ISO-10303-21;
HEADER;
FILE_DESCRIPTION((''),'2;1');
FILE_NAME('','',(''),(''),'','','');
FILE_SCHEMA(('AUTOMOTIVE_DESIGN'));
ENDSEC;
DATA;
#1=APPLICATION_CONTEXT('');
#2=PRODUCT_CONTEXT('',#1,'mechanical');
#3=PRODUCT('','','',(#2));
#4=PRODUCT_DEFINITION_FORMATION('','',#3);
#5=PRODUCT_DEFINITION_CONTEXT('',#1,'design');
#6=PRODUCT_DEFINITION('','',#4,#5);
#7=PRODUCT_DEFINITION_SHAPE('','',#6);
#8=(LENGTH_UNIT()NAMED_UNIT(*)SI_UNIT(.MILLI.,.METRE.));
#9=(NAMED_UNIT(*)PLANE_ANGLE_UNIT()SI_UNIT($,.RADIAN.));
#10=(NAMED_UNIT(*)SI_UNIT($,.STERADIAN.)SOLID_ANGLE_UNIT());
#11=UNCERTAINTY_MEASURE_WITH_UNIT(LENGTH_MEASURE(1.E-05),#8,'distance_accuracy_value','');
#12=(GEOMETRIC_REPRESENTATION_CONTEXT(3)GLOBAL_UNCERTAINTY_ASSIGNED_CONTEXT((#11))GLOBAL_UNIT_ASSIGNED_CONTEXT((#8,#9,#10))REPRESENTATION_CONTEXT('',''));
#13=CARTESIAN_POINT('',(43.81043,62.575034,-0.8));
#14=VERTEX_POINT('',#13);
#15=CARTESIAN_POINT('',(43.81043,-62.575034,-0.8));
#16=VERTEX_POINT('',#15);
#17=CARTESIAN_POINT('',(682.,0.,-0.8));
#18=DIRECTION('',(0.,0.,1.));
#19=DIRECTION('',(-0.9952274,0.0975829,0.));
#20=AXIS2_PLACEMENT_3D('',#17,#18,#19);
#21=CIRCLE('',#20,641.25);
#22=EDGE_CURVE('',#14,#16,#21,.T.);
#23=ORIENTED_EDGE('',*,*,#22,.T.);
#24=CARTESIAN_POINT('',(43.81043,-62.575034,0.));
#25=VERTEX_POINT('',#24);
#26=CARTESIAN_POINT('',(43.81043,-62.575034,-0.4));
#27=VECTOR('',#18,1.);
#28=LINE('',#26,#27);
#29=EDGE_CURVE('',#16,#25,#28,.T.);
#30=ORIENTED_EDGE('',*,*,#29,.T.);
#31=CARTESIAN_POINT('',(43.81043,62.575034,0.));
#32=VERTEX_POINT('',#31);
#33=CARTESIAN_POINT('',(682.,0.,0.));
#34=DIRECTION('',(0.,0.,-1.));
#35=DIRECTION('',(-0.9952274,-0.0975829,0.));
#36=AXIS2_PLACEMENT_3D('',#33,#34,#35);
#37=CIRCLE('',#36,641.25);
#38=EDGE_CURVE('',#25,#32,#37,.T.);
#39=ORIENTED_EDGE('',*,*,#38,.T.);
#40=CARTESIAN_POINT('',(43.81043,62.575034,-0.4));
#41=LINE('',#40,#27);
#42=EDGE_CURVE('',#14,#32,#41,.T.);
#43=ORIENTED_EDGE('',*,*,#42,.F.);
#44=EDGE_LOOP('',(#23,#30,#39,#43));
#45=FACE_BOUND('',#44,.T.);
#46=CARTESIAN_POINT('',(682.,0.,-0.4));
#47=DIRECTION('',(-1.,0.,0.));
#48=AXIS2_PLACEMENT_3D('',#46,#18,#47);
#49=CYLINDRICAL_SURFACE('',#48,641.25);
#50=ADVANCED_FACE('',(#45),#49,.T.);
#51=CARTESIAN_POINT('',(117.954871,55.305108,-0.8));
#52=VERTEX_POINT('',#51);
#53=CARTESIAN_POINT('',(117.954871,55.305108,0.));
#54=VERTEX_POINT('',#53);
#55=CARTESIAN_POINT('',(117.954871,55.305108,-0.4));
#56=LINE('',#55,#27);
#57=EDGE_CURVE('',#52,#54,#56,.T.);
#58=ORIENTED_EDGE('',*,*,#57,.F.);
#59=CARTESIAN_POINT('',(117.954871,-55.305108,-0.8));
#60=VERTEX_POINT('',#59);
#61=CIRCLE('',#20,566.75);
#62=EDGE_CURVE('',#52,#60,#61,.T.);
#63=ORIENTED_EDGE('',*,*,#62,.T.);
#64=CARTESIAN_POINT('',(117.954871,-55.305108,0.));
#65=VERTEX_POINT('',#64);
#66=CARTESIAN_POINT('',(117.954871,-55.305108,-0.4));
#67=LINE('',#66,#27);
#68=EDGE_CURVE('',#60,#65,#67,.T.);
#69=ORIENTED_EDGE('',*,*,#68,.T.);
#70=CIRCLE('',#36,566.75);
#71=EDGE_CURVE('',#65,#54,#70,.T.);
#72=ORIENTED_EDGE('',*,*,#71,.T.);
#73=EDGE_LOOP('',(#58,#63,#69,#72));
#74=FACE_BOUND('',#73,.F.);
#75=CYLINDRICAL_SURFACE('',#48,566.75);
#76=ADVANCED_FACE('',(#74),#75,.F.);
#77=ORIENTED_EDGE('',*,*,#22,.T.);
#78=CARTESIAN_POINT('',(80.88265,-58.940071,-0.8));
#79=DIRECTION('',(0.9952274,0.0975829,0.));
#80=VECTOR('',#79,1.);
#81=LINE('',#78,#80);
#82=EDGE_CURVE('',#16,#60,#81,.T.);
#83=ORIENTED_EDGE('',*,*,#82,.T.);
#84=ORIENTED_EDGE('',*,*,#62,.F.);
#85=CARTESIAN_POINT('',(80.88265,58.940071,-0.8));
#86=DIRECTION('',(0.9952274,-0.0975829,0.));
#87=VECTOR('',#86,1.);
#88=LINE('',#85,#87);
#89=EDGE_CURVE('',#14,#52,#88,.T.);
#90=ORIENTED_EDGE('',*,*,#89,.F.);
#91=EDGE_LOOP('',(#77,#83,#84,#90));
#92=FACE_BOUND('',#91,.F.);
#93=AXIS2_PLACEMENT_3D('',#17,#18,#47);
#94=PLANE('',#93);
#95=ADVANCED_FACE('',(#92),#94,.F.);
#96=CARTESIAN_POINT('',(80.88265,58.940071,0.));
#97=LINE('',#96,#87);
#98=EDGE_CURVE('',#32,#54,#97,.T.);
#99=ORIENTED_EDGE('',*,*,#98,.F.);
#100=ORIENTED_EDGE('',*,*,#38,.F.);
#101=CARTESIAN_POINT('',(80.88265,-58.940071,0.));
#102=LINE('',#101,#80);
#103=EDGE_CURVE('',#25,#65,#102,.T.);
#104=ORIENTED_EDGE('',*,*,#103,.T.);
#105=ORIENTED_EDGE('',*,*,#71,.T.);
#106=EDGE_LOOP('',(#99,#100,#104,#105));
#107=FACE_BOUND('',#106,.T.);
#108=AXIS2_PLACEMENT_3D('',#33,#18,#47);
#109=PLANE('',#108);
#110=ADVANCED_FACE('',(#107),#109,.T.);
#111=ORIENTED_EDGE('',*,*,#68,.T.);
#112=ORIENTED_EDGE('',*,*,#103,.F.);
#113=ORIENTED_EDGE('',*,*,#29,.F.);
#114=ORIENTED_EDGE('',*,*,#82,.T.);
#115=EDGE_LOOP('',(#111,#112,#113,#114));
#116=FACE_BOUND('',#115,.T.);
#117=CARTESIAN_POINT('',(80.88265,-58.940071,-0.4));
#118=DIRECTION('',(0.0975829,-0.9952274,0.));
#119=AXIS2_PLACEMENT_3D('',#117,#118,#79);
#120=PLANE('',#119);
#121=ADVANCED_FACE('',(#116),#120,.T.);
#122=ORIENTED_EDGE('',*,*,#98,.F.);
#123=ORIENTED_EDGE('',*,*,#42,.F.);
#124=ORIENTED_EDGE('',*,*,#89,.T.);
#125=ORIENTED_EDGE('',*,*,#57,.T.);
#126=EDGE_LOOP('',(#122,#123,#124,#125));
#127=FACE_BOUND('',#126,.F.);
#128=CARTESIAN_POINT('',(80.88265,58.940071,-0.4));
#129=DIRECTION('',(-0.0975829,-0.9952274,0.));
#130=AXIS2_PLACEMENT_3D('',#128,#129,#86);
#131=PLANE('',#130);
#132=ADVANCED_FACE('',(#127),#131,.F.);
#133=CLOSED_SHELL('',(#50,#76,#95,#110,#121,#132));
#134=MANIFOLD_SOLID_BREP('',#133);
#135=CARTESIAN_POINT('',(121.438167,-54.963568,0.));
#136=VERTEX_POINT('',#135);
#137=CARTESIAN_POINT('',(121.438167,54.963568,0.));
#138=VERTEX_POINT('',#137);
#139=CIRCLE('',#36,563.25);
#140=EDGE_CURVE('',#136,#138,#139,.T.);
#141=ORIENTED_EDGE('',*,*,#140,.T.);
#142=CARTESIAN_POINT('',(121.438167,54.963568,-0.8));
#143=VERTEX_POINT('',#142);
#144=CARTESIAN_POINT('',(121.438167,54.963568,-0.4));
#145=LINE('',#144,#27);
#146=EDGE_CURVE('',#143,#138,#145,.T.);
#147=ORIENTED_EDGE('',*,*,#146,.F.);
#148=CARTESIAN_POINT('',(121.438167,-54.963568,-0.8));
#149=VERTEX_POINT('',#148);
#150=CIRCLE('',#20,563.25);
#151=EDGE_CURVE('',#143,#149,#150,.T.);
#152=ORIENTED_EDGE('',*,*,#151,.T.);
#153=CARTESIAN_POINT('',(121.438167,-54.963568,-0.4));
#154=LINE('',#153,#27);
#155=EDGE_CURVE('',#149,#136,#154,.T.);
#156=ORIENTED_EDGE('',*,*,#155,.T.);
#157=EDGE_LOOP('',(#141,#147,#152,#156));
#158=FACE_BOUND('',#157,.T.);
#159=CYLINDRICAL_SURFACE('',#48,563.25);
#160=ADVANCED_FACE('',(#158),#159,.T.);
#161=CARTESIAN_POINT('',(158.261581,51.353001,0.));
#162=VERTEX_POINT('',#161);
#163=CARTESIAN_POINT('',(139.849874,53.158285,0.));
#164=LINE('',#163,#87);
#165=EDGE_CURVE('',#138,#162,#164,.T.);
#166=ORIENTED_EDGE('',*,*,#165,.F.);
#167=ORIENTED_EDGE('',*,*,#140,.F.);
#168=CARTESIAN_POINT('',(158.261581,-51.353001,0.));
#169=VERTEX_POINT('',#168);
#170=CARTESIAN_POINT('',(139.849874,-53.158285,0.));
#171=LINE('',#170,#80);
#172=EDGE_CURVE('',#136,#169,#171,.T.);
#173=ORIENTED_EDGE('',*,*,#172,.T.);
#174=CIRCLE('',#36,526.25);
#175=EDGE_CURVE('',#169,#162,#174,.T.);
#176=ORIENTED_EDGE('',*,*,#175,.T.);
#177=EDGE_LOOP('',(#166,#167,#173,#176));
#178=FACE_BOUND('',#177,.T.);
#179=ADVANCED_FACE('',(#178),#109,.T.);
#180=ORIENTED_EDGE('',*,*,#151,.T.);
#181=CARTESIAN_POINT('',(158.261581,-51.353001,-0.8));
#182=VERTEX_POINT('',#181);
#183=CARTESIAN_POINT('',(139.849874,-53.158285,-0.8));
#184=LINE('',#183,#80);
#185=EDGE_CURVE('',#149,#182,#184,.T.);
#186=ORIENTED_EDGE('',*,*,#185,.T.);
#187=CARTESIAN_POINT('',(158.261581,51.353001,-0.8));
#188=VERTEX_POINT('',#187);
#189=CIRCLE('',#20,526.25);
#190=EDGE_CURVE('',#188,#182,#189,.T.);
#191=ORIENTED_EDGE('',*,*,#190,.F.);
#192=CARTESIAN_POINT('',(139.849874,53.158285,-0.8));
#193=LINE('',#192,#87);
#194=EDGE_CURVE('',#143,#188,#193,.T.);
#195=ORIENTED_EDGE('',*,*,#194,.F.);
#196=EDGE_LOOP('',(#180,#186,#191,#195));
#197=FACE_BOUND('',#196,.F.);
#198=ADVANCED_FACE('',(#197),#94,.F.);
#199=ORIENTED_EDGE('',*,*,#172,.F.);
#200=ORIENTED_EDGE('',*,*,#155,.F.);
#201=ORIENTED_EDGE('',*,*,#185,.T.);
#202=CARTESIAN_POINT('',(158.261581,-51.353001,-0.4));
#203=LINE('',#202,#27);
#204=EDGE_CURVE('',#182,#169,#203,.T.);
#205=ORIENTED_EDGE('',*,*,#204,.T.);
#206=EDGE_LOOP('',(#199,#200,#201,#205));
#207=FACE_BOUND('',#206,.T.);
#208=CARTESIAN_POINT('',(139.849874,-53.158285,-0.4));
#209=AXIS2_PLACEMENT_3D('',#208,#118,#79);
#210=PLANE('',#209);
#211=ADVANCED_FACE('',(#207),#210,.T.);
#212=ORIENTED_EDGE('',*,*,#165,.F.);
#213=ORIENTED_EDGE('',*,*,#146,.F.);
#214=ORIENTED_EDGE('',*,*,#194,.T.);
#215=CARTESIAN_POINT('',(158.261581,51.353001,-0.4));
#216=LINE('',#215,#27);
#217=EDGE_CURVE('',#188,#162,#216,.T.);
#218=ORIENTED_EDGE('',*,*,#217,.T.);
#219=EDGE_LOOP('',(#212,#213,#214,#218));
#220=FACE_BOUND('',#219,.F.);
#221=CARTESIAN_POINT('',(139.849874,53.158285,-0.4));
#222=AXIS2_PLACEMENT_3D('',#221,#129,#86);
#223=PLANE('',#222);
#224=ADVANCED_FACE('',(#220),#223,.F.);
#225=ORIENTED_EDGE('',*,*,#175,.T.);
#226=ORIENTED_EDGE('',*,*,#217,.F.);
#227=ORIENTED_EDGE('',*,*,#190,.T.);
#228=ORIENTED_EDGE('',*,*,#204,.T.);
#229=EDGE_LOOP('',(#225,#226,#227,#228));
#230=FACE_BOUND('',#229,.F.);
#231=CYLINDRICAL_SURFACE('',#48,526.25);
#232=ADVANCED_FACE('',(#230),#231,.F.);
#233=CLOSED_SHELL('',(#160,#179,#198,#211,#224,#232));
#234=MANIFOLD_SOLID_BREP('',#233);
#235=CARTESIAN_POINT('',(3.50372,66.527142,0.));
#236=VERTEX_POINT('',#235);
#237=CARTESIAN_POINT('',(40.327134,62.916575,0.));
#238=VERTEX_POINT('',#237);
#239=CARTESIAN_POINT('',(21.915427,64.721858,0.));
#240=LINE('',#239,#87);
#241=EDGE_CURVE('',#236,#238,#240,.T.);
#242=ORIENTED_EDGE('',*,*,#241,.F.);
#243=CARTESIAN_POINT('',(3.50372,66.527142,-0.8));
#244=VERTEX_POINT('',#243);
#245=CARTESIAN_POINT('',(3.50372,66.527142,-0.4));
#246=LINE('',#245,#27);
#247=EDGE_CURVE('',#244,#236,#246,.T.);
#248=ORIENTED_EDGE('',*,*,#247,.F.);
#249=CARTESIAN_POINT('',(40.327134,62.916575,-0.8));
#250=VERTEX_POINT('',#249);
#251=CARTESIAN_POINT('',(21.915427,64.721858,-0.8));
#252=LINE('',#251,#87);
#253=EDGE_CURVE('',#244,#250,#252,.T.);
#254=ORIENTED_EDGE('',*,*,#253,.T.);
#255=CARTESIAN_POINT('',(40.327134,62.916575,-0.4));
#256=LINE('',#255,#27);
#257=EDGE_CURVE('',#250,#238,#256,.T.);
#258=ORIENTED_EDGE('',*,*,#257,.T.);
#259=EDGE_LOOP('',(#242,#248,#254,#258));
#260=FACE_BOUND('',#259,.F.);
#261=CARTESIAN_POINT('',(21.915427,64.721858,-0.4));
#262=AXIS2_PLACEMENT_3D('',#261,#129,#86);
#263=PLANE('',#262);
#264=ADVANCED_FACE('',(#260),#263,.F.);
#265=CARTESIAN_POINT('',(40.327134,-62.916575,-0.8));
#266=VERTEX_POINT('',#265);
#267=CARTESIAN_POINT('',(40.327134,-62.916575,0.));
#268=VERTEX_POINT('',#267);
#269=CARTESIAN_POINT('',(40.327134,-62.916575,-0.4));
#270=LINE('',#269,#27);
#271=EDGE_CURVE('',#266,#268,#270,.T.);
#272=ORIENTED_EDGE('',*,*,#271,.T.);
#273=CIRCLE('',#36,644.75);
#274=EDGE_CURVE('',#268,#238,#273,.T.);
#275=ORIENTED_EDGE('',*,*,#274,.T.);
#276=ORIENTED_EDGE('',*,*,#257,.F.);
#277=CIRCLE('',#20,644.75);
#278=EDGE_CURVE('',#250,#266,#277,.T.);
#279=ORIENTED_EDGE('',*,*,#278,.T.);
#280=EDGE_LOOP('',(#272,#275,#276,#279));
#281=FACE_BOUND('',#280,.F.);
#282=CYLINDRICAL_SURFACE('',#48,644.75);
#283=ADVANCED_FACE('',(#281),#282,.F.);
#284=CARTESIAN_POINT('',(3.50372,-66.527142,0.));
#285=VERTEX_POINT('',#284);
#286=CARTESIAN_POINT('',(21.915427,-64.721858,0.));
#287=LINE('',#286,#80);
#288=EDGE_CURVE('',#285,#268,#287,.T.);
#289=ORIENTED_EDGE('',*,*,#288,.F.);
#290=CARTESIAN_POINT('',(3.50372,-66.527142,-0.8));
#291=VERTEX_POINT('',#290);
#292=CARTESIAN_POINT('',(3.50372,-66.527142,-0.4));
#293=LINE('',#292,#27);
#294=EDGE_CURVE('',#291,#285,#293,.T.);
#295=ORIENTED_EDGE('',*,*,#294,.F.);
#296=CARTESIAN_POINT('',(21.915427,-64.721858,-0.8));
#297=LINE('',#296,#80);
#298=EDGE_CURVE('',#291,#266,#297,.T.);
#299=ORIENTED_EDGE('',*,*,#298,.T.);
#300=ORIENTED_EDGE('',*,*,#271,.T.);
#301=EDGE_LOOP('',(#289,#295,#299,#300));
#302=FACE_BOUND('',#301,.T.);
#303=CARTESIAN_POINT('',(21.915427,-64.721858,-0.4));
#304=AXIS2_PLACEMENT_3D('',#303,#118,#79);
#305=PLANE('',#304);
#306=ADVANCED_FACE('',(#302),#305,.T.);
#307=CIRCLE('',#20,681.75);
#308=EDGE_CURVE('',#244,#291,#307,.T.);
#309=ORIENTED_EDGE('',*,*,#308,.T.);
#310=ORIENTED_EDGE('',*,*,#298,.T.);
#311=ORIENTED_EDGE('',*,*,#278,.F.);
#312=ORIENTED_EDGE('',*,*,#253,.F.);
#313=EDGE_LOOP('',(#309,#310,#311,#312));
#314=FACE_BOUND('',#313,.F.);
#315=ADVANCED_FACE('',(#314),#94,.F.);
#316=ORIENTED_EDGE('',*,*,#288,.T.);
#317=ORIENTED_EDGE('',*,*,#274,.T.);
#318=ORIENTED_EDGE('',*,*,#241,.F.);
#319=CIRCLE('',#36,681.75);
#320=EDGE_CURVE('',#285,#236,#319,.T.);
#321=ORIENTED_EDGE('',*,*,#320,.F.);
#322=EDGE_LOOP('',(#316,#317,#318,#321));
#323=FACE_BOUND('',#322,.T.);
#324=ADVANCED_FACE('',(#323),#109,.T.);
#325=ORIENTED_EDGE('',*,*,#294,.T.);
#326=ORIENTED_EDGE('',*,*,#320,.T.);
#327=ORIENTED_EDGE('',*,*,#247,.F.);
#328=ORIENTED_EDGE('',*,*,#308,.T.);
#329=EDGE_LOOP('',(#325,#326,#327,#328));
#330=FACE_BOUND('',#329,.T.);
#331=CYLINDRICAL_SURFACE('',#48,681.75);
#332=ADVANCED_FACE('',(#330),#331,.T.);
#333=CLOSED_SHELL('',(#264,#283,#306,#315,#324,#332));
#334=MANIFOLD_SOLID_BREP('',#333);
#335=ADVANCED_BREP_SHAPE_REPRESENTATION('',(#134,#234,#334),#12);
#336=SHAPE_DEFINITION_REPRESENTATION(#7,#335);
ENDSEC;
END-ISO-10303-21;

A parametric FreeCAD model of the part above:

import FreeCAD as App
import Part
import Sketcher

doc = App.newDocument("Part")
params = doc.addObject("Spreadsheet::Sheet", "Params")
for row, (alias, value) in enumerate([
    ("sketch1_width", "37 mm"),
    ("sketch1_width2", "74.5 mm"),
    ("sketch1_height", "0.8 mm"),
    ("revolution_angle", "5.6 deg"),
    ("sketch2_width", "37 mm"),
    ("sketch2_width2", "74.5 mm"),
    ("sketch2_height", "0.8 mm"),
    ("revolution2_angle", "5.6 deg"),
], start=1):
    params.set(f"A{row}", alias)
    params.set(f"B{row}", "=" + value)
    params.setAlias(f"B{row}", alias)

body = doc.addObject("PartDesign::Body", "Body")
body.AllowCompound = True

sketch1 = body.newObject("Sketcher::SketchObject", "Sketch")
sketch1.AttachmentSupport = (doc.getObject("XZ_Plane"), [""])
sketch1.MapMode = "FlatFace"
sketch1.addGeometry(Part.LineSegment(App.Vector(0.2, 0, 0), App.Vector(0.2, -0.8, 0)), False)
sketch1.addGeometry(Part.LineSegment(App.Vector(0.2, -0.8, 0), App.Vector(37.2, -0.8, 0)), False)
sketch1.addGeometry(Part.LineSegment(App.Vector(37.2, -0.8, 0), App.Vector(37.2, 0, 0)), False)
sketch1.addGeometry(Part.LineSegment(App.Vector(37.2, 0, 0), App.Vector(0.2, 0, 0)), False)
sketch1.addGeometry(Part.LineSegment(App.Vector(40.8, 0, 0), App.Vector(40.8, -0.8, 0)), False)
sketch1.addGeometry(Part.LineSegment(App.Vector(40.8, -0.8, 0), App.Vector(115.2, -0.8, 0)), False)
sketch1.addGeometry(Part.LineSegment(App.Vector(115.2, -0.8, 0), App.Vector(115.2, 0, 0)), False)
sketch1.addGeometry(Part.LineSegment(App.Vector(115.2, 0, 0), App.Vector(40.8, 0, 0)), False)
sketch1.addGeometry(Part.LineSegment(App.Vector(118.8, 0, 0), App.Vector(118.8, -0.8, 0)), False)
sketch1.addGeometry(Part.LineSegment(App.Vector(118.8, -0.8, 0), App.Vector(155.8, -0.8, 0)), False)
sketch1.addGeometry(Part.LineSegment(App.Vector(155.8, -0.8, 0), App.Vector(155.8, 0, 0)), False)
sketch1.addGeometry(Part.LineSegment(App.Vector(155.8, 0, 0), App.Vector(118.8, 0, 0)), False)
sketch1.addGeometry(Part.LineSegment(App.Vector(682, 0, 0), App.Vector(682, -0.8, 0)), True)
sketch1.addConstraint(Sketcher.Constraint("Coincident", 0, 2, 1, 1))
sketch1.addConstraint(Sketcher.Constraint("Coincident", 1, 2, 2, 1))
sketch1.addConstraint(Sketcher.Constraint("Coincident", 2, 2, 3, 1))
sketch1.addConstraint(Sketcher.Constraint("Coincident", 3, 2, 0, 1))
sketch1.addConstraint(Sketcher.Constraint("Coincident", 4, 2, 5, 1))
sketch1.addConstraint(Sketcher.Constraint("Coincident", 5, 2, 6, 1))
sketch1.addConstraint(Sketcher.Constraint("Coincident", 6, 2, 7, 1))
sketch1.addConstraint(Sketcher.Constraint("Coincident", 7, 2, 4, 1))
sketch1.addConstraint(Sketcher.Constraint("Coincident", 8, 2, 9, 1))
sketch1.addConstraint(Sketcher.Constraint("Coincident", 9, 2, 10, 1))
sketch1.addConstraint(Sketcher.Constraint("Coincident", 10, 2, 11, 1))
sketch1.addConstraint(Sketcher.Constraint("Coincident", 11, 2, 8, 1))
sketch1.addConstraint(Sketcher.Constraint("Vertical", 0))
sketch1.addConstraint(Sketcher.Constraint("Horizontal", 1))
sketch1.addConstraint(Sketcher.Constraint("Vertical", 2))
sketch1.addConstraint(Sketcher.Constraint("Horizontal", 3))
sketch1.addConstraint(Sketcher.Constraint("Vertical", 4))
sketch1.addConstraint(Sketcher.Constraint("Horizontal", 5))
sketch1.addConstraint(Sketcher.Constraint("Vertical", 6))
sketch1.addConstraint(Sketcher.Constraint("Horizontal", 7))
sketch1.addConstraint(Sketcher.Constraint("Vertical", 8))
sketch1.addConstraint(Sketcher.Constraint("Horizontal", 9))
sketch1.addConstraint(Sketcher.Constraint("Vertical", 10))
sketch1.addConstraint(Sketcher.Constraint("Horizontal", 11))
sketch1.addConstraint(Sketcher.Constraint("Vertical", 12))
sketch1.addConstraint(Sketcher.Constraint("PointOnObject", 2, 2, -1))
sketch1.addConstraint(Sketcher.Constraint("PointOnObject", 6, 2, -1))
sketch1.addConstraint(Sketcher.Constraint("PointOnObject", 10, 2, -1))
sketch1.addConstraint(Sketcher.Constraint("PointOnObject", 12, 1, -1))
sketch1.addConstraint(Sketcher.Constraint("Horizontal", 1, 2, 4, 2))
sketch1.addConstraint(Sketcher.Constraint("Horizontal", 5, 2, 8, 2))
sketch1.addConstraint(Sketcher.Constraint("Horizontal", 9, 2, 12, 2))
sketch1.addConstraint(Sketcher.Constraint("Equal", 3, 9))
sketch1.addConstraint(Sketcher.Constraint("DistanceX", 1, 1, 1, 2, 37.0))
sketch1.addConstraint(Sketcher.Constraint("DistanceX", 5, 1, 5, 2, 74.5))
sketch1.addConstraint(Sketcher.Constraint("DistanceY", 0, 2, 0, 1, 0.8))
sketch1.addConstraint(Sketcher.Constraint("DistanceX", -1, 1, 12, 1, 682.0))
sketch1.addConstraint(Sketcher.Constraint("DistanceX", 1, 2, 5, 2, 78.0))
sketch1.addConstraint(Sketcher.Constraint("DistanceX", 4, 2, 8, 2, 78.0))
sketch1.addConstraint(Sketcher.Constraint("DistanceX", -1, 1, 0, 2, 0.25))
sketch1.setExpression("Constraints[33]", "Params.sketch1_width")
sketch1.setExpression("Constraints[34]", "Params.sketch1_width2")
sketch1.setExpression("Constraints[35]", "Params.sketch1_height")
revolution = body.newObject("PartDesign::Revolution", "Revolution")
revolution.Profile = sketch1
revolution.ReferenceAxis = (sketch1, ["Axis0"])
revolution.setExpression("Angle", "Params.revolution_angle")

sketch2 = body.newObject("Sketcher::SketchObject", "Sketch001")
sketch2.AttachmentSupport = (doc.getObject("XZ_Plane"), [""])
sketch2.MapMode = "FlatFace"
sketch2.addGeometry(Part.LineSegment(App.Vector(0.2, 0, 0), App.Vector(0.2, -0.8, 0)), False)
sketch2.addGeometry(Part.LineSegment(App.Vector(0.2, -0.8, 0), App.Vector(37.2, -0.8, 0)), False)
sketch2.addGeometry(Part.LineSegment(App.Vector(37.2, -0.8, 0), App.Vector(37.2, 0, 0)), False)
sketch2.addGeometry(Part.LineSegment(App.Vector(37.2, 0, 0), App.Vector(0.2, 0, 0)), False)
sketch2.addGeometry(Part.LineSegment(App.Vector(40.8, 0, 0), App.Vector(40.8, -0.8, 0)), False)
sketch2.addGeometry(Part.LineSegment(App.Vector(40.8, -0.8, 0), App.Vector(115.2, -0.8, 0)), False)
sketch2.addGeometry(Part.LineSegment(App.Vector(115.2, -0.8, 0), App.Vector(115.2, 0, 0)), False)
sketch2.addGeometry(Part.LineSegment(App.Vector(115.2, 0, 0), App.Vector(40.8, 0, 0)), False)
sketch2.addGeometry(Part.LineSegment(App.Vector(118.8, 0, 0), App.Vector(118.8, -0.8, 0)), False)
sketch2.addGeometry(Part.LineSegment(App.Vector(118.8, -0.8, 0), App.Vector(155.8, -0.8, 0)), False)
sketch2.addGeometry(Part.LineSegment(App.Vector(155.8, -0.8, 0), App.Vector(155.8, 0, 0)), False)
sketch2.addGeometry(Part.LineSegment(App.Vector(155.8, 0, 0), App.Vector(118.8, 0, 0)), False)
sketch2.addGeometry(Part.LineSegment(App.Vector(682, -0.8, 0), App.Vector(682, 0, 0)), True)
sketch2.addConstraint(Sketcher.Constraint("Coincident", 0, 2, 1, 1))
sketch2.addConstraint(Sketcher.Constraint("Coincident", 1, 2, 2, 1))
sketch2.addConstraint(Sketcher.Constraint("Coincident", 2, 2, 3, 1))
sketch2.addConstraint(Sketcher.Constraint("Coincident", 3, 2, 0, 1))
sketch2.addConstraint(Sketcher.Constraint("Coincident", 4, 2, 5, 1))
sketch2.addConstraint(Sketcher.Constraint("Coincident", 5, 2, 6, 1))
sketch2.addConstraint(Sketcher.Constraint("Coincident", 6, 2, 7, 1))
sketch2.addConstraint(Sketcher.Constraint("Coincident", 7, 2, 4, 1))
sketch2.addConstraint(Sketcher.Constraint("Coincident", 8, 2, 9, 1))
sketch2.addConstraint(Sketcher.Constraint("Coincident", 9, 2, 10, 1))
sketch2.addConstraint(Sketcher.Constraint("Coincident", 10, 2, 11, 1))
sketch2.addConstraint(Sketcher.Constraint("Coincident", 11, 2, 8, 1))
sketch2.addConstraint(Sketcher.Constraint("Vertical", 0))
sketch2.addConstraint(Sketcher.Constraint("Horizontal", 1))
sketch2.addConstraint(Sketcher.Constraint("Vertical", 2))
sketch2.addConstraint(Sketcher.Constraint("Horizontal", 3))
sketch2.addConstraint(Sketcher.Constraint("Vertical", 4))
sketch2.addConstraint(Sketcher.Constraint("Horizontal", 5))
sketch2.addConstraint(Sketcher.Constraint("Vertical", 6))
sketch2.addConstraint(Sketcher.Constraint("Horizontal", 7))
sketch2.addConstraint(Sketcher.Constraint("Vertical", 8))
sketch2.addConstraint(Sketcher.Constraint("Horizontal", 9))
sketch2.addConstraint(Sketcher.Constraint("Vertical", 10))
sketch2.addConstraint(Sketcher.Constraint("Horizontal", 11))
sketch2.addConstraint(Sketcher.Constraint("Vertical", 12))
sketch2.addConstraint(Sketcher.Constraint("PointOnObject", 2, 2, -1))
sketch2.addConstraint(Sketcher.Constraint("PointOnObject", 6, 2, -1))
sketch2.addConstraint(Sketcher.Constraint("PointOnObject", 10, 2, -1))
sketch2.addConstraint(Sketcher.Constraint("PointOnObject", 12, 2, -1))
sketch2.addConstraint(Sketcher.Constraint("Horizontal", 1, 2, 4, 2))
sketch2.addConstraint(Sketcher.Constraint("Horizontal", 5, 2, 8, 2))
sketch2.addConstraint(Sketcher.Constraint("Horizontal", 9, 2, 12, 1))
sketch2.addConstraint(Sketcher.Constraint("Equal", 3, 9))
sketch2.addConstraint(Sketcher.Constraint("DistanceX", 1, 1, 1, 2, 37.0))
sketch2.addConstraint(Sketcher.Constraint("DistanceX", 5, 1, 5, 2, 74.5))
sketch2.addConstraint(Sketcher.Constraint("DistanceY", 0, 2, 0, 1, 0.8))
sketch2.addConstraint(Sketcher.Constraint("DistanceX", -1, 1, 12, 1, 682.0))
sketch2.addConstraint(Sketcher.Constraint("DistanceX", 1, 2, 5, 2, 78.0))
sketch2.addConstraint(Sketcher.Constraint("DistanceX", 4, 2, 8, 2, 78.0))
sketch2.addConstraint(Sketcher.Constraint("DistanceX", -1, 1, 0, 2, 0.25))
sketch2.setExpression("Constraints[33]", "Params.sketch2_width")
sketch2.setExpression("Constraints[34]", "Params.sketch2_width2")
sketch2.setExpression("Constraints[35]", "Params.sketch2_height")
revolution2 = body.newObject("PartDesign::Revolution", "Revolution001")
revolution2.Profile = sketch2
revolution2.ReferenceAxis = (sketch2, ["Axis0"])
revolution2.setExpression("Angle", "Params.revolution2_angle")

doc.recompute()
